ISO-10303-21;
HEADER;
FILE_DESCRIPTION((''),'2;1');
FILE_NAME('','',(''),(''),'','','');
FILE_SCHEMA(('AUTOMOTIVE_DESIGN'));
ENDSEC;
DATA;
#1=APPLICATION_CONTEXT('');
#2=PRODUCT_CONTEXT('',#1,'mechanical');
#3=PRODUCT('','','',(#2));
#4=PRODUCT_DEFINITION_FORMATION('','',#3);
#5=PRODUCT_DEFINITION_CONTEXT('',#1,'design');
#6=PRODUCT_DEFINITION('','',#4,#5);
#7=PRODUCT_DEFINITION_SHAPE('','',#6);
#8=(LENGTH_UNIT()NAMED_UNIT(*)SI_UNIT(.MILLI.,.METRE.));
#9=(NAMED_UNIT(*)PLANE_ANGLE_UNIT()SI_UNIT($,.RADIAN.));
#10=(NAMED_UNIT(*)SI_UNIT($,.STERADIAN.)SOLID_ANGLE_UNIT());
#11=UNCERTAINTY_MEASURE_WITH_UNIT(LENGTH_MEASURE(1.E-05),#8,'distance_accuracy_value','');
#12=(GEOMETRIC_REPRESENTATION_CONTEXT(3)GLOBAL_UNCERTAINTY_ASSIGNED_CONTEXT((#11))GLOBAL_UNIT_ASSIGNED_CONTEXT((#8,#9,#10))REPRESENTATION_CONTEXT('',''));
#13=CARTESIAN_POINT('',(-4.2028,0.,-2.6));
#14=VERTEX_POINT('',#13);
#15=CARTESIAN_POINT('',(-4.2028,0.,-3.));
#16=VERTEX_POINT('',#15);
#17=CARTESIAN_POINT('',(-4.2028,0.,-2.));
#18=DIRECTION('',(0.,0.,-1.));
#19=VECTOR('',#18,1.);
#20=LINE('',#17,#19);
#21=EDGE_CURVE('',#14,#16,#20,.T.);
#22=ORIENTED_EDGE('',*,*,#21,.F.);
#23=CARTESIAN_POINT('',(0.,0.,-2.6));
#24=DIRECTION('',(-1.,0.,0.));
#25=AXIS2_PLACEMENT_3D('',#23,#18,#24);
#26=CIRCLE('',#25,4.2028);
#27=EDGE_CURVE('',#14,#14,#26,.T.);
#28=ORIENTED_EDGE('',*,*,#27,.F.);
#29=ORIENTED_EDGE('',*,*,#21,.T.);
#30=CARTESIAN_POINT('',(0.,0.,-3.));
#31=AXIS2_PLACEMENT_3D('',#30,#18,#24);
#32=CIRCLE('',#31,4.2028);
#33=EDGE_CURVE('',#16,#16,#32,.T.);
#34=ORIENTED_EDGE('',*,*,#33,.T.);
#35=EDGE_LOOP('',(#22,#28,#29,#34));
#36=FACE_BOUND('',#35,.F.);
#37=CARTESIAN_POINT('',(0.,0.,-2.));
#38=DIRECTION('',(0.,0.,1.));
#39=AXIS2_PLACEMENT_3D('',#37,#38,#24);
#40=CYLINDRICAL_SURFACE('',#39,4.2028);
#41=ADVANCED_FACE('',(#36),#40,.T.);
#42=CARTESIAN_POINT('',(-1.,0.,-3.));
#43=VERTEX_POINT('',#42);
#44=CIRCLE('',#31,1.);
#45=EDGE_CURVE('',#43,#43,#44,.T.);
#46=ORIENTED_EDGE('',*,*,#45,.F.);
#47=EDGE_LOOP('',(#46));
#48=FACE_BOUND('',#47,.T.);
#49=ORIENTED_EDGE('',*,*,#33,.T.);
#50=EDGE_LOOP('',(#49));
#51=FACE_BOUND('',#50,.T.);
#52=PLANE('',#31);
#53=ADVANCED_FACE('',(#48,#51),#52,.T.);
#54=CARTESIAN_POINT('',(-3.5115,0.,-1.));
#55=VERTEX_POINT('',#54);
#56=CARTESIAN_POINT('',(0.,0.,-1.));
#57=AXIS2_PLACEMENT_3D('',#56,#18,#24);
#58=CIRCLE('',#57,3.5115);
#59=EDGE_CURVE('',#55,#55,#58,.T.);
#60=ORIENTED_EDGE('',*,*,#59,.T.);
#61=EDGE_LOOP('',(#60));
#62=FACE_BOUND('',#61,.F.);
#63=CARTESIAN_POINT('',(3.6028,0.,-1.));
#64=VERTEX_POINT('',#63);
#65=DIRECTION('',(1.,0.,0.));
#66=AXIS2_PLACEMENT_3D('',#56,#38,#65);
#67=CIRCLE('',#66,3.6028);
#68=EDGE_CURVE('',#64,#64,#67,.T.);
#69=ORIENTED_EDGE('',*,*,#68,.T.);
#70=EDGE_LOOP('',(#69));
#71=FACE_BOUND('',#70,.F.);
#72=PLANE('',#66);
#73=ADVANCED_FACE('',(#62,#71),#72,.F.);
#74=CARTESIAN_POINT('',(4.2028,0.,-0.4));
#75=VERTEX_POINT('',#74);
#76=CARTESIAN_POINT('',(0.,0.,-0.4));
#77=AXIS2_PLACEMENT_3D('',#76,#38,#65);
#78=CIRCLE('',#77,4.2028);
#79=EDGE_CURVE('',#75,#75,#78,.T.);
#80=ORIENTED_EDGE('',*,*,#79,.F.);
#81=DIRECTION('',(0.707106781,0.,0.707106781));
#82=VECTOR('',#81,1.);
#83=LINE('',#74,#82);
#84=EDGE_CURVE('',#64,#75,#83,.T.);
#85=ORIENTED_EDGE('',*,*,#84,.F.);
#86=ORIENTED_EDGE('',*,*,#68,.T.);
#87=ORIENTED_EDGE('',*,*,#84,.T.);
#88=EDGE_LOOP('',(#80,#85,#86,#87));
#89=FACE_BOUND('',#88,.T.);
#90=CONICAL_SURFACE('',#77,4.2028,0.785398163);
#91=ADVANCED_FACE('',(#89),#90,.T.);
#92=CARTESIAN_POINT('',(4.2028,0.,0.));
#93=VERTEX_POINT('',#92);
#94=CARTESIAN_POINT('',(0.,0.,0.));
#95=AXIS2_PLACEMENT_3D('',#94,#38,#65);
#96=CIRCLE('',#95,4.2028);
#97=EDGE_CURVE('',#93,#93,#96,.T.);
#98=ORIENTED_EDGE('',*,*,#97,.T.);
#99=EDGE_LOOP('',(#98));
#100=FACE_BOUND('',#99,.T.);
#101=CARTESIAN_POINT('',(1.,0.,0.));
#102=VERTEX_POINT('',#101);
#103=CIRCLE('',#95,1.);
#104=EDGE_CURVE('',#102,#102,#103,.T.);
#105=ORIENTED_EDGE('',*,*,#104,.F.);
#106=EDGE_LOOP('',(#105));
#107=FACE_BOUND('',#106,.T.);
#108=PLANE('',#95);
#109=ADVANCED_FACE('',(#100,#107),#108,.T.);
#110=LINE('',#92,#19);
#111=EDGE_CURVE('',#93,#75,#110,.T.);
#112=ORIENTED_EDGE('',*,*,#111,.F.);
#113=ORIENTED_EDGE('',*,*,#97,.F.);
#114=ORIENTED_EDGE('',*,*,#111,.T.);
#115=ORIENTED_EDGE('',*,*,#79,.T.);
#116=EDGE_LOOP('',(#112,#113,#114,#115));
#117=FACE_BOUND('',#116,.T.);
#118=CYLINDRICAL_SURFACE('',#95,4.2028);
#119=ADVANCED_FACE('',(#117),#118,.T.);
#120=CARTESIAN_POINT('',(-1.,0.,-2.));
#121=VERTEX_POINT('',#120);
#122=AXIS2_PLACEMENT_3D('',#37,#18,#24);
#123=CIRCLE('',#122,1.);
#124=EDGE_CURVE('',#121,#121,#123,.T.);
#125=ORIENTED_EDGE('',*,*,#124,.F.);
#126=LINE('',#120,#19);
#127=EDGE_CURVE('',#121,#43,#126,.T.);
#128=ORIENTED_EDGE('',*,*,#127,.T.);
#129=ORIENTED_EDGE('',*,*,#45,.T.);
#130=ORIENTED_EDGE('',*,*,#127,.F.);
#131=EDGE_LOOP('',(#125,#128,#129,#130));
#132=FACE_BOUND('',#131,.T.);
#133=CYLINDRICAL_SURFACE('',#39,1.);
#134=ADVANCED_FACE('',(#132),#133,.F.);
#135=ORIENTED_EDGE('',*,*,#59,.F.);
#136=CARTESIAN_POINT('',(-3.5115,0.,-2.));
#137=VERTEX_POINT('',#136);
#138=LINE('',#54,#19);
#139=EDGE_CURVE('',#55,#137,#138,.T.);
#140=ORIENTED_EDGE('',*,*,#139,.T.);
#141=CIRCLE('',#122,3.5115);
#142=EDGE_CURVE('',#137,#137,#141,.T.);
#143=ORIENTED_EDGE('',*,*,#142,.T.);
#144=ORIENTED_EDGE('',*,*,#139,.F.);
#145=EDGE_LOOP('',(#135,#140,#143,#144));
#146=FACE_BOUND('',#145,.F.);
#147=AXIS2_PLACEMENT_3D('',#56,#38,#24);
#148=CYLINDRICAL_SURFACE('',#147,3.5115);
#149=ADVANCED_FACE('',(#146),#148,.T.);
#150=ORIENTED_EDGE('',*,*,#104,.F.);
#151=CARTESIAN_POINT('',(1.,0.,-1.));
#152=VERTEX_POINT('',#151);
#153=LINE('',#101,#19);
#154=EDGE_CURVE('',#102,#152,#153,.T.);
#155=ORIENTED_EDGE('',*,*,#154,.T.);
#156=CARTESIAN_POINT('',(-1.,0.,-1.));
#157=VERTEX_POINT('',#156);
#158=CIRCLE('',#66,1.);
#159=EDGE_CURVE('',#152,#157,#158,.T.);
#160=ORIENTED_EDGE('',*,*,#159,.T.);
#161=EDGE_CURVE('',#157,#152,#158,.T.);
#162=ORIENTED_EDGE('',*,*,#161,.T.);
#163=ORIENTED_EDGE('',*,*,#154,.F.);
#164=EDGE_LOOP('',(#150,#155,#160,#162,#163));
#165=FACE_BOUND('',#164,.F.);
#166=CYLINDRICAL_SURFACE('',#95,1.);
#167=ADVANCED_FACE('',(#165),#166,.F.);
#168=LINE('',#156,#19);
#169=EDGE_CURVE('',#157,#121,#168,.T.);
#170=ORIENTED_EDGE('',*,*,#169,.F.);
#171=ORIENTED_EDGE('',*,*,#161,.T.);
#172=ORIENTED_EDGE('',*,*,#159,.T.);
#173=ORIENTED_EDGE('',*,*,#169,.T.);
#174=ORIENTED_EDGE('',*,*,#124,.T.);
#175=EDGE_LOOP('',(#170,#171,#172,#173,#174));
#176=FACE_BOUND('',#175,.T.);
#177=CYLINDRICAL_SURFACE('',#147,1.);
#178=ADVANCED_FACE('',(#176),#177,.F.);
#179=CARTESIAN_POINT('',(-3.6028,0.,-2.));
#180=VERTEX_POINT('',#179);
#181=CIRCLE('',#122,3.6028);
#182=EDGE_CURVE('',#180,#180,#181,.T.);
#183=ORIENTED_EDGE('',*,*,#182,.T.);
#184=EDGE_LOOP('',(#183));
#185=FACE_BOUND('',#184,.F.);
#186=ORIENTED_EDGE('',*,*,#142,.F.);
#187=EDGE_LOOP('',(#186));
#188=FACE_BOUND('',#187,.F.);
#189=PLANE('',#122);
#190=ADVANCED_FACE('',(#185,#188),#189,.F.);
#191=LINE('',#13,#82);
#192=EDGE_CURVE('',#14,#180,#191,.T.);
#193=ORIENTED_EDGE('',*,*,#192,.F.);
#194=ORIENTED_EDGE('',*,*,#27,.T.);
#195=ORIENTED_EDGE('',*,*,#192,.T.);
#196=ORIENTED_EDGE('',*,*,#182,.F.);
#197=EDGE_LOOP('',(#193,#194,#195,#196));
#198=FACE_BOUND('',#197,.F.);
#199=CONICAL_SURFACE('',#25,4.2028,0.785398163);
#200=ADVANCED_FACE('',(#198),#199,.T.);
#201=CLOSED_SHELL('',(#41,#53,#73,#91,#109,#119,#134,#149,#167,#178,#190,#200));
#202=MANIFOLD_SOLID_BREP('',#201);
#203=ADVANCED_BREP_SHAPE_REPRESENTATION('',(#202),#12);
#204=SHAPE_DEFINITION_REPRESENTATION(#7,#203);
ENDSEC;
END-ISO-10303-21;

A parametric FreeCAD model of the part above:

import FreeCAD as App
import Part
import Sketcher
Q = App.Units.Quantity


def edges_at(feature, points):
    """Names of the edges that pass closest to the given points."""
    edges = feature.Shape.Edges
    near = lambda p: min(range(len(edges)), key=lambda i: edges[i].distToShape(Part.Vertex(*p))[0])
    return sorted({f"Edge{near(p) + 1}" for p in points})

doc = App.newDocument("Part")
body = doc.addObject("PartDesign::Body", "Body")

# Sketch on XY plane
sketch1 = body.newObject("Sketcher::SketchObject", "Sketch")
sketch1.AttachmentSupport = (doc.getObject("XY_Plane"), [""])
sketch1.MapMode = "FlatFace"
sketch1.addGeometry([
    Part.Circle(App.Vector(0, 0, 0), App.Vector(0, 0, 1), 4.2),
    Part.Circle(App.Vector(0, 0, 0), App.Vector(0, 0, 1), 1),
], False)
sketch1.addConstraint([
    Sketcher.Constraint("Coincident", 0, 3, -1, 1),
    Sketcher.Constraint("Coincident", 1, 3, -1, 1),
    Sketcher.Constraint("Diameter", 1, Q("2 mm")),
    Sketcher.Constraint("Diameter", 0, Q("8.4056 mm")),
])
pad1 = body.newObject("PartDesign::Pad", "Pad")
pad1.Profile = sketch1
pad1.Length = 1
pad1.Reversed = True

# Sketch on XY plane
sketch2 = body.newObject("Sketcher::SketchObject", "Sketch001")
sketch2.AttachmentSupport = (doc.getObject("XY_Plane"), [""])
sketch2.MapMode = "FlatFace"
sketch2.AttachmentOffset = App.Placement(App.Vector(0, 0, -1), App.Rotation())
sketch2.addGeometry([
    Part.Circle(App.Vector(0, 0, 0), App.Vector(0, 0, 1), 3.5),
    Part.Circle(App.Vector(0, 0, 0), App.Vector(0, 0, 1), 1),
], False)
sketch2.addConstraint([
    Sketcher.Constraint("Coincident", 0, 3, -1, 1),
    Sketcher.Constraint("Coincident", 1, 3, -1, 1),
    Sketcher.Constraint("Diameter", 1, Q("2 mm")),
    Sketcher.Constraint("Diameter", 0, Q("7.023 mm")),
])
pad2 = body.newObject("PartDesign::Pad", "Pad001")
pad2.Profile = sketch2
pad2.Length = 1
pad2.Reversed = True

# Sketch on XY plane
sketch3 = body.newObject("Sketcher::SketchObject", "Sketch002")
sketch3.AttachmentSupport = (doc.getObject("XY_Plane"), [""])
sketch3.MapMode = "FlatFace"
sketch3.AttachmentOffset = App.Placement(App.Vector(0, 0, -2), App.Rotation())
sketch3.addGeometry([
    Part.Circle(App.Vector(0, 0, 0), App.Vector(0, 0, 1), 4.2),
    Part.Circle(App.Vector(0, 0, 0), App.Vector(0, 0, 1), 1),
], False)
sketch3.addConstraint([
    Sketcher.Constraint("Coincident", 0, 3, -1, 1),
    Sketcher.Constraint("Coincident", 1, 3, -1, 1),
    Sketcher.Constraint("Diameter", 1, Q("2 mm")),
    Sketcher.Constraint("Diameter", 0, Q("8.4056 mm")),
])
pad3 = body.newObject("PartDesign::Pad", "Pad002")
pad3.Profile = sketch3
pad3.Length = 1
pad3.Reversed = True
doc.recompute()

chamfer = body.newObject("PartDesign::Chamfer", "Chamfer")
chamfer.Base = (pad3, edges_at(pad3, [(4.203, 0, -2), (-4.203, 0, -1)]))
chamfer.Size = 0.6

doc.recompute()
